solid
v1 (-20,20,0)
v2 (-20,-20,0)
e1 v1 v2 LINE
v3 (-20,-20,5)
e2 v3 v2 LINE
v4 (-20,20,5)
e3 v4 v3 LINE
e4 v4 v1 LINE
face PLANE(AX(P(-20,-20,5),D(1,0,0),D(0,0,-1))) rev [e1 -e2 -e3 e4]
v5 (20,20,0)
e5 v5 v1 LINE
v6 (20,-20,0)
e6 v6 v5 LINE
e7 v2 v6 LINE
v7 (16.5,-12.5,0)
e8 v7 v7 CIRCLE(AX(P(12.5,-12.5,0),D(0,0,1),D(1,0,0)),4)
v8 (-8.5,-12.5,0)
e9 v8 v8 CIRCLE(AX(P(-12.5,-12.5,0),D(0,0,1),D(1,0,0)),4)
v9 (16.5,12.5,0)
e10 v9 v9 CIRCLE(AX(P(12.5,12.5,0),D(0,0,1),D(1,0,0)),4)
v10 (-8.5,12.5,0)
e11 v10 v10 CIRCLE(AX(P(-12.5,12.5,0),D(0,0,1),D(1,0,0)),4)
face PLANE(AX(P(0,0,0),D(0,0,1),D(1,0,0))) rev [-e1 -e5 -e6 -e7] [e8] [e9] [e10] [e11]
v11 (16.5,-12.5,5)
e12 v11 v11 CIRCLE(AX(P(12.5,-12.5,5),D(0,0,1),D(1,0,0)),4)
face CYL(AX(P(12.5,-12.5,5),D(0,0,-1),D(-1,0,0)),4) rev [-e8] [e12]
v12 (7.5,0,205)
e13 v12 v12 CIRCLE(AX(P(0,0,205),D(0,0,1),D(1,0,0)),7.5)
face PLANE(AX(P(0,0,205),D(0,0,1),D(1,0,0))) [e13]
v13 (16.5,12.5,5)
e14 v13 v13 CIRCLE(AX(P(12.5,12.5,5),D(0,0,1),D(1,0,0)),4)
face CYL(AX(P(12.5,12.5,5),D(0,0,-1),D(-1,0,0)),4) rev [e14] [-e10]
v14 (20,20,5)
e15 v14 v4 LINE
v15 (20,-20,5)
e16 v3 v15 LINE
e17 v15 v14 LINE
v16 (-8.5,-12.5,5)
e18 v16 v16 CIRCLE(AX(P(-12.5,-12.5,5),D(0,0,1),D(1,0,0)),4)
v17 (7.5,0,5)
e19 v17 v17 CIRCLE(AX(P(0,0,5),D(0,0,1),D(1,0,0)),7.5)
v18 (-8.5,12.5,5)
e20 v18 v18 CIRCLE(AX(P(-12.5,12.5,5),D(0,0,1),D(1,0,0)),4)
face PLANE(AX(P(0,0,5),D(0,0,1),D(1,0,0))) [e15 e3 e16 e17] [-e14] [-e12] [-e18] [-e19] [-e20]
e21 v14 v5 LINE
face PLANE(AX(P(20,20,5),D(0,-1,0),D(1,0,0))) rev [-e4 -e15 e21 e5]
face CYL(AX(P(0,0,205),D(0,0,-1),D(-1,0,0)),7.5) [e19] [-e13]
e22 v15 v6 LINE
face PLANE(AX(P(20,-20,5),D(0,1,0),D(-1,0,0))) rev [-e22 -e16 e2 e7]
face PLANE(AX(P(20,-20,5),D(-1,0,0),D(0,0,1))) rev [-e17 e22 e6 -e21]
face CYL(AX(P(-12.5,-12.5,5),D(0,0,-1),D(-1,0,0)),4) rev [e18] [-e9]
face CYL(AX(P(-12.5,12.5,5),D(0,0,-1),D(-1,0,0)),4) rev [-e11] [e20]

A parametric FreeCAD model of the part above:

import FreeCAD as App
import Part
import Sketcher
from FreeCAD import Vector
Q = App.Units.Quantity


def add_polygon(sketch, points):
    """Adds a closed chain of lines whose ends are joined by coincident constraints."""
    first, n = sketch.GeometryCount, len(points)
    for a, b in zip(points, points[1:] + points[:1]):
        sketch.addGeometry(Part.LineSegment(App.Vector(*a, 0), App.Vector(*b, 0)), False)
    for i in range(n):
        sketch.addConstraint(Sketcher.Constraint("Coincident", first + i, 2, first + (i + 1) % n, 1))

doc = App.newDocument("Part")
body = doc.addObject("PartDesign::Body", "Body")

sketch1 = doc.addObject("Sketcher::SketchObject", "Sketch")
body.addObject(sketch1)
sketch1.AttachmentSupport = (doc.XY_Plane, [""])
sketch1.MapMode = "FlatFace"
add_polygon(sketch1, [(-20, 20), (-20, -20), (20, -20), (20, 20)])
sketch1.addGeometry(Part.Circle(Vector(-12.5, -12.5, 0), Vector(0, 0, 1), 4), False)
sketch1.addGeometry(Part.Circle(Vector(12.5, -12.5, 0), Vector(0, 0, 1), 4), False)
sketch1.addGeometry(Part.Circle(Vector(-12.5, 12.5, 0), Vector(0, 0, 1), 4), False)
sketch1.addGeometry(Part.Circle(Vector(12.5, 12.5, 0), Vector(0, 0, 1), 4), False)
sketch1.addConstraint(Sketcher.Constraint("Vertical", 0))
sketch1.addConstraint(Sketcher.Constraint("Horizontal", 1))
sketch1.addConstraint(Sketcher.Constraint("Vertical", 2))
sketch1.addConstraint(Sketcher.Constraint("Horizontal", 3))
sketch1.addConstraint(Sketcher.Constraint("Equal", 4, 5))
sketch1.addConstraint(Sketcher.Constraint("Equal", 5, 6))
sketch1.addConstraint(Sketcher.Constraint("Equal", 6, 7))
sketch1.addConstraint(Sketcher.Constraint("Symmetric", 5, 3, 6, 3, -1, 1))
sketch1.addConstraint(Sketcher.Constraint("Symmetric", 4, 3, 7, 3, -1, 1))
sketch1.addConstraint(Sketcher.Constraint("Symmetric", 0, 2, 2, 2, -1, 1))
sketch1.addConstraint(Sketcher.Constraint("Symmetric", 4, 3, 5, 3, -2))
sketch1.addConstraint(Sketcher.Constraint("Equal", 3, 0))
sketch1.addConstraint(Sketcher.Constraint("Diameter", 4, Q("8 mm")))
sketch1.addConstraint(Sketcher.Constraint("DistanceX", 1, 1, 1, 2, Q("40 mm")))
sketch1.addConstraint(Sketcher.Constraint("DistanceX", 4, 3, 5, 3, Q("25 mm")))
sketch1.addConstraint(Sketcher.Constraint("DistanceY", 4, 3, 6, 3, Q("25 mm")))
pad1 = doc.addObject("PartDesign::Pad", "Pad")
body.addObject(pad1)
pad1.Profile = sketch1
pad1.Length = 5

sketch2 = doc.addObject("Sketcher::SketchObject", "Sketch001")
body.addObject(sketch2)
sketch2.AttachmentSupport = (doc.XY_Plane, [""])
sketch2.MapMode = "FlatFace"
sketch2.AttachmentOffset = App.Placement(Vector(0, 0, 5), App.Rotation())
sketch2.addGeometry(Part.Circle(Vector(0, 0, 0), Vector(0, 0, 1), 8), False)
sketch2.addConstraint(Sketcher.Constraint("Coincident", 0, 3, -1, 1))
sketch2.addConstraint(Sketcher.Constraint("Diameter", 0, Q("15 mm")))
pad2 = doc.addObject("PartDesign::Pad", "Pad001")
body.addObject(pad2)
pad2.Profile = sketch2
pad2.Length = 200

doc.recompute()
